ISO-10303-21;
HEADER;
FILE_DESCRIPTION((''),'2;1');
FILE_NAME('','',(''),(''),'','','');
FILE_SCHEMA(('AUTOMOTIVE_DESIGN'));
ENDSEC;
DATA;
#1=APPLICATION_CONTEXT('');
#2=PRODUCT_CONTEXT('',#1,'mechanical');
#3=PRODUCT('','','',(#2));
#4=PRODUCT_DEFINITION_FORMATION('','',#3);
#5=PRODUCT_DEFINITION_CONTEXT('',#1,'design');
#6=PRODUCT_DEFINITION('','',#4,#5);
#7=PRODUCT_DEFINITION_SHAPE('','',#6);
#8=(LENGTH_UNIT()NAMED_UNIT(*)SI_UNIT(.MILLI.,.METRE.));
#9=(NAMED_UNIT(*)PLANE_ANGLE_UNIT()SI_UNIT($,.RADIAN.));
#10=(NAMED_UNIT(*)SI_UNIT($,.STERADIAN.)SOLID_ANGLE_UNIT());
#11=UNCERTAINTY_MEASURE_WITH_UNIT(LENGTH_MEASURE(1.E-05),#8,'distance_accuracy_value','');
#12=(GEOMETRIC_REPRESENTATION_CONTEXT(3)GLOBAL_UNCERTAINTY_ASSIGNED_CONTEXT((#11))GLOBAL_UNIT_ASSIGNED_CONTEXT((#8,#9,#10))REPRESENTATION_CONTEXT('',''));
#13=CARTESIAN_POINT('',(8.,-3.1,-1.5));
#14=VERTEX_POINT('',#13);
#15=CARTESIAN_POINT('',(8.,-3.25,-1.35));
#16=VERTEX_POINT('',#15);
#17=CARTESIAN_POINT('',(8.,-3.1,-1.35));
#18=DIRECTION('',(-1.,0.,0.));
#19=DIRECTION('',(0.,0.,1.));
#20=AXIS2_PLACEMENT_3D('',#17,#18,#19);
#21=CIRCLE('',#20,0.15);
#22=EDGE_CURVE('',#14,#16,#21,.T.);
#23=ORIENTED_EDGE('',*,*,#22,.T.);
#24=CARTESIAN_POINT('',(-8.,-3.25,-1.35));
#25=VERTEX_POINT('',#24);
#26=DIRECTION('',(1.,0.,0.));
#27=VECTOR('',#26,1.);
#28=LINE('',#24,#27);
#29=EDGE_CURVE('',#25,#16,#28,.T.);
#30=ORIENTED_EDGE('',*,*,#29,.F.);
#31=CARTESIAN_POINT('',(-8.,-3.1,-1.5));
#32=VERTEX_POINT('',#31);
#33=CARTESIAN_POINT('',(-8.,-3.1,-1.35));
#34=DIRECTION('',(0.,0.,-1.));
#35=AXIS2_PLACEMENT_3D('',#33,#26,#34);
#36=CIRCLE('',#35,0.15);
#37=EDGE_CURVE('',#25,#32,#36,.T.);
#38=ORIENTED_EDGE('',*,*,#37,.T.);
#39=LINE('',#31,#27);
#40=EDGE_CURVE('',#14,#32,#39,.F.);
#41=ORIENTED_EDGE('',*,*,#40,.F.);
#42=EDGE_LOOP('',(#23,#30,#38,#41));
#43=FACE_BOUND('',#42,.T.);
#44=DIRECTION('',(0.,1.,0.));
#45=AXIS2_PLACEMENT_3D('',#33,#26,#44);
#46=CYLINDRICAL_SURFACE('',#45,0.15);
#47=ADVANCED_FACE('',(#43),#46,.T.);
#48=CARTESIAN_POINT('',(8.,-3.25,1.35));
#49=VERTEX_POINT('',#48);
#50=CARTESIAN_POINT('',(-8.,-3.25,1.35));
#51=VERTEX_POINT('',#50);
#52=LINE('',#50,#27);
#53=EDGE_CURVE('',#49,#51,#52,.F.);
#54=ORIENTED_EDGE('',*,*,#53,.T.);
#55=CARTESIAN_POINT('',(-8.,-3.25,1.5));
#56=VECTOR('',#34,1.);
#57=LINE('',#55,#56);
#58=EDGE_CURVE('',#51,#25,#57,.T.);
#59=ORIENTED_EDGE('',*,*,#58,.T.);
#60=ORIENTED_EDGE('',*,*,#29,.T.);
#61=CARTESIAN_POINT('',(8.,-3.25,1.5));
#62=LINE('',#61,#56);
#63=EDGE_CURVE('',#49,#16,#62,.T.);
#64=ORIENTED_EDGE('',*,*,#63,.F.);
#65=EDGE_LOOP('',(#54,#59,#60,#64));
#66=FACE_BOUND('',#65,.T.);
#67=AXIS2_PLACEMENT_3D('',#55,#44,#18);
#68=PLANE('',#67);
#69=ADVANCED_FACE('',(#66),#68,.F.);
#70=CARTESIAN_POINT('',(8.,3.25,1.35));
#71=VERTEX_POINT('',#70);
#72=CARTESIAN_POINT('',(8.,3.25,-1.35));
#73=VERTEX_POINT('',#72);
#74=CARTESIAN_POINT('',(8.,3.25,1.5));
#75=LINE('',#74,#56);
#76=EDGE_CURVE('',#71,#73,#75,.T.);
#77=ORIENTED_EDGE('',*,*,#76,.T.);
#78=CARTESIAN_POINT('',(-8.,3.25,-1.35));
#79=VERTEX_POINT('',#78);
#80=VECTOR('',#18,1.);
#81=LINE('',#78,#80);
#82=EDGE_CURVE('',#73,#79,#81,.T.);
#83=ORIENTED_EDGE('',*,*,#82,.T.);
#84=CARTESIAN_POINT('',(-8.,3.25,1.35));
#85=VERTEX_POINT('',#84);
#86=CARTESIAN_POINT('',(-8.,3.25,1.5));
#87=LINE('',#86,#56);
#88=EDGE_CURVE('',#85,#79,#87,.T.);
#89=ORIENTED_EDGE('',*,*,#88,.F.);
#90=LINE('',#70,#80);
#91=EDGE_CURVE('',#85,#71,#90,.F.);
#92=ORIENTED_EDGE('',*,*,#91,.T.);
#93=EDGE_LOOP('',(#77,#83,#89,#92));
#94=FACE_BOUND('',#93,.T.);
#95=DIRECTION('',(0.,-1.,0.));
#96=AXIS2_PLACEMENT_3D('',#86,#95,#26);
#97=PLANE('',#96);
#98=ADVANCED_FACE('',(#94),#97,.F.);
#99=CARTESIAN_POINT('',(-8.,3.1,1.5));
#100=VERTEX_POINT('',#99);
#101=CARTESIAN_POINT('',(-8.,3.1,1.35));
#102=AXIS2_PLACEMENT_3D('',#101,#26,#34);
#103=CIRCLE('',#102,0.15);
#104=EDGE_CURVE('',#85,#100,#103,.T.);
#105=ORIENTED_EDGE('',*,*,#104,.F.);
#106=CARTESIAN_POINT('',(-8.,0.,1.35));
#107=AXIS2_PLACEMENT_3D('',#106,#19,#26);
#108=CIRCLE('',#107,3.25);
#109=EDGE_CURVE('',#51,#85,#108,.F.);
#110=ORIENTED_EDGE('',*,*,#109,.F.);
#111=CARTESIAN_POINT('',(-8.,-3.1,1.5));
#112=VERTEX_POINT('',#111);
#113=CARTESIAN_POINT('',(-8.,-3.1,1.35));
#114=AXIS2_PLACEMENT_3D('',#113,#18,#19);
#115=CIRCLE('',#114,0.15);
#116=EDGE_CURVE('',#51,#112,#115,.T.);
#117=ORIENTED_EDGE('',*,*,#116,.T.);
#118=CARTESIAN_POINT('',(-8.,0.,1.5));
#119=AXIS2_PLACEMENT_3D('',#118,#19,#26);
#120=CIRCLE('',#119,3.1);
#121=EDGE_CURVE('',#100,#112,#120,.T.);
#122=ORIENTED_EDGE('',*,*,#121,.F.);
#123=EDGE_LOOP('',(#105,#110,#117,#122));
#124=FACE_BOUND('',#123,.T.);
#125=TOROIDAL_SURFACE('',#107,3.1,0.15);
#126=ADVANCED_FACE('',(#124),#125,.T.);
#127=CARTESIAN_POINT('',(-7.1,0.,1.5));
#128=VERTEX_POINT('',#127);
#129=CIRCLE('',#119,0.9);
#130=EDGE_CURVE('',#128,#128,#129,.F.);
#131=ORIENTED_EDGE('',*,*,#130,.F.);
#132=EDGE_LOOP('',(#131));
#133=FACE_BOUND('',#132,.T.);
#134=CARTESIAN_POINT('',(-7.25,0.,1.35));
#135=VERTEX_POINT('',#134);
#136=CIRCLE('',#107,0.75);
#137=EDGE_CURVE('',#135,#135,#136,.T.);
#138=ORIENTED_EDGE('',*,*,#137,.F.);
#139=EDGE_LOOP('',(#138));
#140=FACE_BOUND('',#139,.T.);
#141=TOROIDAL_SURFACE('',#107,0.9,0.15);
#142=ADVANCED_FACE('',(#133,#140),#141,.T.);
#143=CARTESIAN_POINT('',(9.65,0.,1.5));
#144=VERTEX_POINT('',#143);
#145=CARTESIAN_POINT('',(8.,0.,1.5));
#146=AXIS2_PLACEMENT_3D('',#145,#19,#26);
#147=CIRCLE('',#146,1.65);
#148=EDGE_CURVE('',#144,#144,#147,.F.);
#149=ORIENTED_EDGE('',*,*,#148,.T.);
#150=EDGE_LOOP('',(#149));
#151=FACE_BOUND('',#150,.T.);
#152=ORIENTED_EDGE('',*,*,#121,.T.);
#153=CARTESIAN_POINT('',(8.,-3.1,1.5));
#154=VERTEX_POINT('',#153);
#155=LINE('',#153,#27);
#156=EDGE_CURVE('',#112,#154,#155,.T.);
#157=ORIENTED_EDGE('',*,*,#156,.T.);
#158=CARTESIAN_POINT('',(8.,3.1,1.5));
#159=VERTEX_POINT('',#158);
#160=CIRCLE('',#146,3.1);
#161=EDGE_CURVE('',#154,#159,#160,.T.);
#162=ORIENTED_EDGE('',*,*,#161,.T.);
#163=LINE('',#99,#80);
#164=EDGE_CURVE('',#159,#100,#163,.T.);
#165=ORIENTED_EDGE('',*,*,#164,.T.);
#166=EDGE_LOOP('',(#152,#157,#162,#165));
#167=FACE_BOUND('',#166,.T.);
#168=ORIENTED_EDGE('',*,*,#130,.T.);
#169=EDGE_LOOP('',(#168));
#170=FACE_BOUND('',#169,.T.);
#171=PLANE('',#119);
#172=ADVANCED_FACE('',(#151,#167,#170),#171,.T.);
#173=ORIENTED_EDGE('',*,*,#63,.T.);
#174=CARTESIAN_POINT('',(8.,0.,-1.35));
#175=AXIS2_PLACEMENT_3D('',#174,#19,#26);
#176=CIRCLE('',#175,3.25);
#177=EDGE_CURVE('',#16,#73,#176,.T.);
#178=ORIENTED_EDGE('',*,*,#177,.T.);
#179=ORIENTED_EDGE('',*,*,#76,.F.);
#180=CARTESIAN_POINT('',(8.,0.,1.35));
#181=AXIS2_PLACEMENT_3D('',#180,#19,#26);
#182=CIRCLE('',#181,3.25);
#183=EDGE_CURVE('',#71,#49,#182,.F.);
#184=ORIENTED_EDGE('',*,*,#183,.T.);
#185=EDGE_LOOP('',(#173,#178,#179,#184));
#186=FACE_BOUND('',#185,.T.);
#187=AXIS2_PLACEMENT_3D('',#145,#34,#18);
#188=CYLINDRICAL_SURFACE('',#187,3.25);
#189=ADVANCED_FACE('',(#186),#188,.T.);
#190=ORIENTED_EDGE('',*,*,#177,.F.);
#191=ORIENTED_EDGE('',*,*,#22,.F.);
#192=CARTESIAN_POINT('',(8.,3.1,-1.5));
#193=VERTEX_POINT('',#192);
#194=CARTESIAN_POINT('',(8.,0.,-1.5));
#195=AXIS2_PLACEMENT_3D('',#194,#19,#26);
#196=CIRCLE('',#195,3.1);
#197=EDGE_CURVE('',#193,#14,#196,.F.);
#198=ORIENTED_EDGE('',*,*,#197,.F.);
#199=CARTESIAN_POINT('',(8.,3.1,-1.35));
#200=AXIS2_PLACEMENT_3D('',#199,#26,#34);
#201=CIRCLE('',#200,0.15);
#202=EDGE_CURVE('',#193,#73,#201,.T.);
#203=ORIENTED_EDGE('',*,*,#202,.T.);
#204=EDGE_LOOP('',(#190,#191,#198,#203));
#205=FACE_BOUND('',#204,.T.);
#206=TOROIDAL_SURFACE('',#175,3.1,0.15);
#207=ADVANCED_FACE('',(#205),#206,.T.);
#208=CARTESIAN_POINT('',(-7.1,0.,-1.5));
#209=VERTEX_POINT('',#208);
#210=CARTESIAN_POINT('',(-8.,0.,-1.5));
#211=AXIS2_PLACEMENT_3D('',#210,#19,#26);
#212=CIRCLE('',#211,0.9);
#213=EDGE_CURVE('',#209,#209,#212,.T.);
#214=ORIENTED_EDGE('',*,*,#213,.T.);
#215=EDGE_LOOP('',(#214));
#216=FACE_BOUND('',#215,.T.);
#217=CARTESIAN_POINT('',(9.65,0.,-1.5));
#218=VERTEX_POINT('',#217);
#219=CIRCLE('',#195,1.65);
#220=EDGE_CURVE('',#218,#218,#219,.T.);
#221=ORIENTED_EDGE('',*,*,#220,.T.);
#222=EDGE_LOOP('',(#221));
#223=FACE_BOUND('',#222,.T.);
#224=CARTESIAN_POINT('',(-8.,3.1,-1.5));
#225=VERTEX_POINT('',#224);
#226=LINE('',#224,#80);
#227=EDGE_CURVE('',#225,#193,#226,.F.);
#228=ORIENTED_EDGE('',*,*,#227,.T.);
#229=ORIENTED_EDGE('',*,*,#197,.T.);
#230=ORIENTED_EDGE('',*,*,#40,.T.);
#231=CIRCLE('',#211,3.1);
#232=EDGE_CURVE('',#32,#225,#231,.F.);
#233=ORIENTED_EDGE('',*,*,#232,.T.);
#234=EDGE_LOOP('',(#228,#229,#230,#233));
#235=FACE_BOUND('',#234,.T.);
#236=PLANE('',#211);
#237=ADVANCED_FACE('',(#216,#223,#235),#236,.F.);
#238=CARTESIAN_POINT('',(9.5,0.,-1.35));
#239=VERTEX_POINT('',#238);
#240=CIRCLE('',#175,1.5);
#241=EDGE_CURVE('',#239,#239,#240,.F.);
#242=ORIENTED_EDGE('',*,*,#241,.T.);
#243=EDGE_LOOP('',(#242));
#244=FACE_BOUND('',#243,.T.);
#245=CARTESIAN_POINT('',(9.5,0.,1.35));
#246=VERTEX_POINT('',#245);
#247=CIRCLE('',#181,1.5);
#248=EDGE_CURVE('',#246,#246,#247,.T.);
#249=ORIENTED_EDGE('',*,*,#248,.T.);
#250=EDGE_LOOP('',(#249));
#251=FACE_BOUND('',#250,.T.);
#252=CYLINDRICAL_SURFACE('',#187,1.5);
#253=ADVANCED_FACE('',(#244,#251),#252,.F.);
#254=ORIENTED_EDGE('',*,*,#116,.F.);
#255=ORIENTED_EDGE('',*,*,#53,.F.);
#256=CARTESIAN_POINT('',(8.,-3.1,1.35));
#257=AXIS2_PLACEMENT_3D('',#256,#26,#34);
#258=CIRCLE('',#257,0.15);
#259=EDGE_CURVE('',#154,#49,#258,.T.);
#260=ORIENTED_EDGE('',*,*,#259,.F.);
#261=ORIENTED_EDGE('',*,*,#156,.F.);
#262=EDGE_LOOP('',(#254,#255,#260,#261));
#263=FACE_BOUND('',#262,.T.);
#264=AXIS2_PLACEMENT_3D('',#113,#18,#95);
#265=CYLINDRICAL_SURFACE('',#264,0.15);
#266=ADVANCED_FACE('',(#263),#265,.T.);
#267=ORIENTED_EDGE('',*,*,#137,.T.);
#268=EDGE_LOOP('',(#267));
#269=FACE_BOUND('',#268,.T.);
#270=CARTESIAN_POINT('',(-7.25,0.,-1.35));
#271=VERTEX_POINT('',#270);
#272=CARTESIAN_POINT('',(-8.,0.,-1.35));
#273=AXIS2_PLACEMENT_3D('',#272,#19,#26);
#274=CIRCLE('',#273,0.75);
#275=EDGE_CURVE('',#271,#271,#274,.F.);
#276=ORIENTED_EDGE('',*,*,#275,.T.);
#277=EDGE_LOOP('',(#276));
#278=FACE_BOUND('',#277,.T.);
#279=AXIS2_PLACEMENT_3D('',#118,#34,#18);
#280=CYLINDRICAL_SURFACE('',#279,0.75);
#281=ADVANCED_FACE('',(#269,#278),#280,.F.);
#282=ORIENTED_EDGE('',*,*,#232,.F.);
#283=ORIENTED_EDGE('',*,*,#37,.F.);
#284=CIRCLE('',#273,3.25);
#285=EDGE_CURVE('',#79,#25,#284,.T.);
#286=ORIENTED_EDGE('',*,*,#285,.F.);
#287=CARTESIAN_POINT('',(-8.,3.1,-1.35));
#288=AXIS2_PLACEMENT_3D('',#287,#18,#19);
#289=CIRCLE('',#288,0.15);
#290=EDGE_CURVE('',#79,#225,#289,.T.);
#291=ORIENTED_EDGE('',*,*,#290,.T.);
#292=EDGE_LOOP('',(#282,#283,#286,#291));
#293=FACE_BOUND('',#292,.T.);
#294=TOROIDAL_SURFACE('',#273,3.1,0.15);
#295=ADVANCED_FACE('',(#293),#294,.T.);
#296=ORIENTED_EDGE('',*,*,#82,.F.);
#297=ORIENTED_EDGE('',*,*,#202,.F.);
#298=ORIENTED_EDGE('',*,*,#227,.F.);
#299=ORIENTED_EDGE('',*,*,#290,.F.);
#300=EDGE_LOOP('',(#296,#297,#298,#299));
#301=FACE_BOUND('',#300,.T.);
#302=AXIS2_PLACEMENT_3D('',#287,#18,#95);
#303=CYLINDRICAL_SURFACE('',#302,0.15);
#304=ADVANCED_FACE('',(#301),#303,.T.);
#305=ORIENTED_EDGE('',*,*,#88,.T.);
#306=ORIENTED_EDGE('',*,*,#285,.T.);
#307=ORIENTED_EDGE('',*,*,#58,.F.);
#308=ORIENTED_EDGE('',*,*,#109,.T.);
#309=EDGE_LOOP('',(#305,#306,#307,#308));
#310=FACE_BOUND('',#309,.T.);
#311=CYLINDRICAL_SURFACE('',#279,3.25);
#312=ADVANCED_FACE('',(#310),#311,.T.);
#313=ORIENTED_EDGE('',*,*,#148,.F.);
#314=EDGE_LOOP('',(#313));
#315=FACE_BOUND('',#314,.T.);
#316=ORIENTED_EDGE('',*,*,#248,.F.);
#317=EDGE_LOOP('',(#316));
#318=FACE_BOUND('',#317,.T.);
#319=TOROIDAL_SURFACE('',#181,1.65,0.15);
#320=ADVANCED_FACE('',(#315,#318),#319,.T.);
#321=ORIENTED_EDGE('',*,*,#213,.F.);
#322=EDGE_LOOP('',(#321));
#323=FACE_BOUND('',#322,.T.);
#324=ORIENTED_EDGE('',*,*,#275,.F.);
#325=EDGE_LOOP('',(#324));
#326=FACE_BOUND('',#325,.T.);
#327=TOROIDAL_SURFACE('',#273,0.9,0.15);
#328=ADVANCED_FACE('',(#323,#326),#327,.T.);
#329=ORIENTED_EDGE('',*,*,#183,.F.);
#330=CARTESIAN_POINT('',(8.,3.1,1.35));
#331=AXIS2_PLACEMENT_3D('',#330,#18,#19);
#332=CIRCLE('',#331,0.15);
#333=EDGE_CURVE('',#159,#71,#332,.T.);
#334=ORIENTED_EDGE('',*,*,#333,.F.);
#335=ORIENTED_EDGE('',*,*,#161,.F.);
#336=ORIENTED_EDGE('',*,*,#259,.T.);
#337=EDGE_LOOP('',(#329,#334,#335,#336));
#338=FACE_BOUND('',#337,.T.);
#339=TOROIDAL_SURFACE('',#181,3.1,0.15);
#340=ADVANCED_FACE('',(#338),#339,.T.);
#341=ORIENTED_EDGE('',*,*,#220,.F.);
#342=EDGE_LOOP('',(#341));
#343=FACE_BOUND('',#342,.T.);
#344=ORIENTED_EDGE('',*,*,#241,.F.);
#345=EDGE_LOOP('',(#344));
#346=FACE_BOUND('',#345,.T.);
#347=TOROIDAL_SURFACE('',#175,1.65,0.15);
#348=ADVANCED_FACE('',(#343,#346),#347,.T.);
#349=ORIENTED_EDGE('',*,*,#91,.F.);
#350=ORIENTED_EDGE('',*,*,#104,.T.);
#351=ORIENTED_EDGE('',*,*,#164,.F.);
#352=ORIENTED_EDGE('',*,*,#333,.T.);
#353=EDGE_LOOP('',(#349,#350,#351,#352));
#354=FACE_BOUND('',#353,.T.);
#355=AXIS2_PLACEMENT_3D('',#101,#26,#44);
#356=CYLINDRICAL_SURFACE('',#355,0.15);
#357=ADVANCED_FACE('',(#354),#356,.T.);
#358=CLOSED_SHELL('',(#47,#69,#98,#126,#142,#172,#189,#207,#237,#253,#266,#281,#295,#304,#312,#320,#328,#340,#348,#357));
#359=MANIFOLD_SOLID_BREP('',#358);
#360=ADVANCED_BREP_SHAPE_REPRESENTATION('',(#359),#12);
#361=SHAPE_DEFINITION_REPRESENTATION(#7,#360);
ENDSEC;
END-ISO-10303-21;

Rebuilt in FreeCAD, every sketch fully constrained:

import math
import FreeCAD as App
import Part
import Sketcher

V = App.Vector
Q = App.Units.Quantity


def edges_at(feature, points):
    """Names of the edges that pass closest to the given points."""
    edges = feature.Shape.Edges
    near = lambda p: min(range(len(edges)), key=lambda i: edges[i].distToShape(Part.Vertex(*p))[0])
    return sorted({f"Edge{near(p) + 1}" for p in points})

doc = App.newDocument("Part")
body = doc.addObject("PartDesign::Body", "Body")

sketch1 = body.newObject("Sketcher::SketchObject", "Sketch")
sketch1.AttachmentSupport = (doc.getObject("XY_Plane"), [""])
sketch1.MapMode = "FlatFace"
sketch1.addGeometry([
    Part.LineSegment(V(8, 3.2, 0), V(-8, 3.2, 0)),
    Part.ArcOfCircle(Part.Circle(V(-8, 0, 0), V(0, 0, 1), 3.2), math.radians(90), math.radians(270)),
    Part.LineSegment(V(-8, -3.2, 0), V(8, -3.2, 0)),
    Part.ArcOfCircle(Part.Circle(V(8, 0, 0), V(0, 0, 1), 3.2), math.radians(-90), math.radians(90)),
    Part.Circle(V(8, 0, 0), V(0, 0, 1), 1.5),
    Part.Circle(V(-8, 0, 0), V(0, 0, 1), 0.8),
], False)
sketch1.addConstraint([
    Sketcher.Constraint("Tangent", 0, 2, 1, 1),
    Sketcher.Constraint("Tangent", 1, 2, 2, 1),
    Sketcher.Constraint("Tangent", 2, 2, 3, 1),
    Sketcher.Constraint("Tangent", 3, 2, 0, 1),
    Sketcher.Constraint("Horizontal", 0),
    Sketcher.Constraint("Horizontal", 2),
    Sketcher.Constraint("Coincident", 4, 3, 3, 3),
    Sketcher.Constraint("Coincident", 5, 3, 1, 3),
    Sketcher.Constraint("Symmetric", 1, 3, 3, 3, -1, 1),
    Sketcher.Constraint("Diameter", 4, Q("3 mm")),
    Sketcher.Constraint("Diameter", 5, Q("1.5 mm")),
    Sketcher.Constraint("DistanceX", 0, 2, 0, 1, Q("16 mm")),
    Sketcher.Constraint("Radius", 1, Q("3.25 mm")),
])
pad1 = body.newObject("PartDesign::Pad", "Pad")
pad1.Profile = sketch1
pad1.Length = 3
pad1.Midplane = True
doc.recompute()

fillet = body.newObject("PartDesign::Fillet", "Fillet")
fillet.Base = (pad1, edges_at(pad1, [
    (-8.75, 0, -1.5),
    (-8.75, 0, 1.5),
    (11.25, 0, 1.5),
    (6.5, 0, -1.5),
    (6.5, 0, 1.5),
    (0, 3.25, 1.5),
    (-11.25, 0, 1.5),
    (0, 3.25, -1.5),
    (11.25, 0, -1.5),
    (0, -3.25, -1.5),
    (-11.25, 0, -1.5),
    (0, -3.25, 1.5),
]))
fillet.Radius = 0.15

doc.recompute()
